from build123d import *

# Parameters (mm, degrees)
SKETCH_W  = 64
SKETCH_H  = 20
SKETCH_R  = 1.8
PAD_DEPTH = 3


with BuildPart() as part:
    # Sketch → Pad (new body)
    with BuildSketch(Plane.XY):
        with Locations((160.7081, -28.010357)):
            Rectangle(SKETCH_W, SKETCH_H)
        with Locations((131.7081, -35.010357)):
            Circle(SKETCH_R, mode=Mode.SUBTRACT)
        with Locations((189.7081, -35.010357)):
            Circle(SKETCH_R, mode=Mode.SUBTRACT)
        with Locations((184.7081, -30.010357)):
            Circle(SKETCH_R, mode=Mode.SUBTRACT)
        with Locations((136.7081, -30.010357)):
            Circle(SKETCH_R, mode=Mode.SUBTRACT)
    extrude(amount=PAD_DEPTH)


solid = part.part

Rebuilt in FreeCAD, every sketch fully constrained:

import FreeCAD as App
import Part
import Sketcher

V = App.Vector
Q = App.Units.Quantity

doc = App.newDocument("Part")
body = doc.addObject("PartDesign::Body", "Body")

# Sketch on XY plane
sketch1 = body.newObject("Sketcher::SketchObject", "Sketch")
sketch1.AttachmentSupport = (doc.getObject("XY_Plane"), [""])
sketch1.MapMode = "FlatFace"
sketch1.addGeometry([
    Part.LineSegment(V(128.7, -18, 0), V(128.7, -38, 0)),  # 0
    Part.LineSegment(V(128.7, -38, 0), V(192.7, -38, 0)),  # 1
    Part.LineSegment(V(192.7, -38, 0), V(192.7, -18, 0)),  # 2
    Part.LineSegment(V(192.7, -18, 0), V(128.7, -18, 0)),  # 3
    Part.Circle(V(131.7, -35, 0), V(0, 0, 1), 1.8),  # 4
    Part.Circle(V(189.7, -35, 0), V(0, 0, 1), 1.8),  # 5
    Part.Circle(V(136.7, -30, 0), V(0, 0, 1), 1.8),  # 6
    Part.Circle(V(184.7, -30, 0), V(0, 0, 1), 1.8),  # 7
], False)
sketch1.addConstraint([
    Sketcher.Constraint("Coincident", 0, 2, 1, 1),
    Sketcher.Constraint("Coincident", 1, 2, 2, 1),
    Sketcher.Constraint("Coincident", 2, 2, 3, 1),
    Sketcher.Constraint("Coincident", 3, 2, 0, 1),
    Sketcher.Constraint("Vertical", 0),
    Sketcher.Constraint("Horizontal", 1),
    Sketcher.Constraint("Vertical", 2),
    Sketcher.Constraint("Horizontal", 3),
    Sketcher.Constraint("Equal", 4, 5),
    Sketcher.Constraint("Equal", 5, 6),
    Sketcher.Constraint("Equal", 6, 7),
    Sketcher.Constraint("Horizontal", 4, 3, 5, 3),
    Sketcher.Constraint("Horizontal", 6, 3, 7, 3),
    Sketcher.Constraint("Diameter", 4, Q("3.6 mm")),
    Sketcher.Constraint("DistanceX", 1, 1, 1, 2, Q("64 mm")),
    Sketcher.Constraint("DistanceY", 0, 2, 0, 1, Q("20 mm")),
    Sketcher.Constraint("DistanceX", 4, 3, 5, 3, Q("58 mm")),
    Sketcher.Constraint("DistanceX", 4, 3, 6, 3, Q("5 mm")),
    Sketcher.Constraint("DistanceY", 4, 3, 6, 3, Q("5 mm")),
    Sketcher.Constraint("DistanceX", 7, 3, 5, 3, Q("5 mm")),
    Sketcher.Constraint("DistanceX", 0, 2, 4, 3, Q("3 mm")),
    Sketcher.Constraint("DistanceY", 0, 2, 4, 3, Q("3 mm")),
    Sketcher.Constraint("DistanceX", -1, 1, 4, 3, Q("131.7081 mm")),
    Sketcher.Constraint("DistanceY", 4, 3, -1, 1, Q("35.010357 mm")),
])
pad1 = body.newObject("PartDesign::Pad", "Pad")
pad1.Profile = sketch1
pad1.Length = 3

doc.recompute()
